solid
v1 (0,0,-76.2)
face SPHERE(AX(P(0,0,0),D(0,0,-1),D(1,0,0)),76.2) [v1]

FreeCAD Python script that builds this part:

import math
import FreeCAD as App
import Part
import Sketcher

V = App.Vector
Q = App.Units.Quantity

doc = App.newDocument("Part")
body = doc.addObject("PartDesign::Body", "Body")

# Sketch on XZ plane
sketch1 = body.newObject("Sketcher::SketchObject", "Sketch")
sketch1.AttachmentSupport = (doc.getObject("XZ_Plane"), [""])
sketch1.MapMode = "FlatFace"
sketch1.addGeometry([
    Part.LineSegment(V(0, -76, 0), V(0, 76, 0)),
    Part.ArcOfCircle(Part.Circle(V(0, 0, 0), V(0, 0, 1), 76), math.radians(-90), math.radians(90)),
], False)
sketch1.addConstraint([
    Sketcher.Constraint("Coincident", 0, 1, 1, 1),
    Sketcher.Constraint("Coincident", 1, 2, 0, 2),
    Sketcher.Constraint("Vertical", 0),
    Sketcher.Constraint("Coincident", 1, 3, -1, 1),
    Sketcher.Constraint("PointOnObject", 0, 1, -2),
    Sketcher.Constraint("Radius", 1, Q("3 in")),
])
revolution = body.newObject("PartDesign::Revolution", "Revolution")
revolution.Profile = sketch1
revolution.ReferenceAxis = (sketch1, ["V_Axis"])
revolution.Angle = 360

doc.recompute()
